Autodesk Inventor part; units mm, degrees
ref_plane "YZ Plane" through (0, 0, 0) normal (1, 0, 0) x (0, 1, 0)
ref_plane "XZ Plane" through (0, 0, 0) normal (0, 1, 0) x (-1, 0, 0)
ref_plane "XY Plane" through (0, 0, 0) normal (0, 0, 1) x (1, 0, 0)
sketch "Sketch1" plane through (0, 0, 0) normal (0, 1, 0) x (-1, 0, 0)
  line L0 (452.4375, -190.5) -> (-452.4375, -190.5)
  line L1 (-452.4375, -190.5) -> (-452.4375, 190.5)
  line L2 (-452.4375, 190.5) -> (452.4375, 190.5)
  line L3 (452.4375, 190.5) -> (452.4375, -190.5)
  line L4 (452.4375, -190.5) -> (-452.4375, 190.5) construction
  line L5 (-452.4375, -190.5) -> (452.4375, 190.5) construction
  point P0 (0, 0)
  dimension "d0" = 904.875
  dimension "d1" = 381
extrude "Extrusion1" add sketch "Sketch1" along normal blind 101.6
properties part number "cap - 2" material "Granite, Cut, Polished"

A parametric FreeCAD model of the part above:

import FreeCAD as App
import Part
import Sketcher
from FreeCAD import Vector
Q = App.Units.Quantity

doc = App.newDocument("Part")
body = doc.addObject("PartDesign::Body", "Body")

# Sketch on XZ plane
sketch1 = doc.addObject("Sketcher::SketchObject", "Sketch")
body.addObject(sketch1)
sketch1.AttachmentSupport = (doc.XZ_Plane, [""])
sketch1.MapMode = "FlatFace"
sketch1.addGeometry(Part.LineSegment(Vector(452, -190, 0), Vector(-452, -190, 0)), False)
sketch1.addGeometry(Part.LineSegment(Vector(-452, -190, 0), Vector(-452, 190, 0)), False)
sketch1.addGeometry(Part.LineSegment(Vector(-452, 190, 0), Vector(452, 190, 0)), False)
sketch1.addGeometry(Part.LineSegment(Vector(452, 190, 0), Vector(452, -190, 0)), False)
sketch1.addConstraint(Sketcher.Constraint("Coincident", 0, 2, 1, 1))
sketch1.addConstraint(Sketcher.Constraint("Coincident", 1, 2, 2, 1))
sketch1.addConstraint(Sketcher.Constraint("Coincident", 2, 2, 3, 1))
sketch1.addConstraint(Sketcher.Constraint("Coincident", 3, 2, 0, 1))
sketch1.addConstraint(Sketcher.Constraint("Horizontal", 0))
sketch1.addConstraint(Sketcher.Constraint("Vertical", 1))
sketch1.addConstraint(Sketcher.Constraint("Horizontal", 2))
sketch1.addConstraint(Sketcher.Constraint("Vertical", 3))
sketch1.addConstraint(Sketcher.Constraint("Symmetric", 0, 2, 2, 2, -1, 1))
sketch1.addConstraint(Sketcher.Constraint("DistanceY", 1, 1, 1, 2, Q("15 in")))
sketch1.addConstraint(Sketcher.Constraint("DistanceX", 0, 2, 0, 1, Q("35.625 in")))
pad1 = doc.addObject("PartDesign::Pad", "Pad")
body.addObject(pad1)
pad1.Profile = sketch1
pad1.Length = Q("4 in")
pad1.Reversed = True

doc.recompute()
